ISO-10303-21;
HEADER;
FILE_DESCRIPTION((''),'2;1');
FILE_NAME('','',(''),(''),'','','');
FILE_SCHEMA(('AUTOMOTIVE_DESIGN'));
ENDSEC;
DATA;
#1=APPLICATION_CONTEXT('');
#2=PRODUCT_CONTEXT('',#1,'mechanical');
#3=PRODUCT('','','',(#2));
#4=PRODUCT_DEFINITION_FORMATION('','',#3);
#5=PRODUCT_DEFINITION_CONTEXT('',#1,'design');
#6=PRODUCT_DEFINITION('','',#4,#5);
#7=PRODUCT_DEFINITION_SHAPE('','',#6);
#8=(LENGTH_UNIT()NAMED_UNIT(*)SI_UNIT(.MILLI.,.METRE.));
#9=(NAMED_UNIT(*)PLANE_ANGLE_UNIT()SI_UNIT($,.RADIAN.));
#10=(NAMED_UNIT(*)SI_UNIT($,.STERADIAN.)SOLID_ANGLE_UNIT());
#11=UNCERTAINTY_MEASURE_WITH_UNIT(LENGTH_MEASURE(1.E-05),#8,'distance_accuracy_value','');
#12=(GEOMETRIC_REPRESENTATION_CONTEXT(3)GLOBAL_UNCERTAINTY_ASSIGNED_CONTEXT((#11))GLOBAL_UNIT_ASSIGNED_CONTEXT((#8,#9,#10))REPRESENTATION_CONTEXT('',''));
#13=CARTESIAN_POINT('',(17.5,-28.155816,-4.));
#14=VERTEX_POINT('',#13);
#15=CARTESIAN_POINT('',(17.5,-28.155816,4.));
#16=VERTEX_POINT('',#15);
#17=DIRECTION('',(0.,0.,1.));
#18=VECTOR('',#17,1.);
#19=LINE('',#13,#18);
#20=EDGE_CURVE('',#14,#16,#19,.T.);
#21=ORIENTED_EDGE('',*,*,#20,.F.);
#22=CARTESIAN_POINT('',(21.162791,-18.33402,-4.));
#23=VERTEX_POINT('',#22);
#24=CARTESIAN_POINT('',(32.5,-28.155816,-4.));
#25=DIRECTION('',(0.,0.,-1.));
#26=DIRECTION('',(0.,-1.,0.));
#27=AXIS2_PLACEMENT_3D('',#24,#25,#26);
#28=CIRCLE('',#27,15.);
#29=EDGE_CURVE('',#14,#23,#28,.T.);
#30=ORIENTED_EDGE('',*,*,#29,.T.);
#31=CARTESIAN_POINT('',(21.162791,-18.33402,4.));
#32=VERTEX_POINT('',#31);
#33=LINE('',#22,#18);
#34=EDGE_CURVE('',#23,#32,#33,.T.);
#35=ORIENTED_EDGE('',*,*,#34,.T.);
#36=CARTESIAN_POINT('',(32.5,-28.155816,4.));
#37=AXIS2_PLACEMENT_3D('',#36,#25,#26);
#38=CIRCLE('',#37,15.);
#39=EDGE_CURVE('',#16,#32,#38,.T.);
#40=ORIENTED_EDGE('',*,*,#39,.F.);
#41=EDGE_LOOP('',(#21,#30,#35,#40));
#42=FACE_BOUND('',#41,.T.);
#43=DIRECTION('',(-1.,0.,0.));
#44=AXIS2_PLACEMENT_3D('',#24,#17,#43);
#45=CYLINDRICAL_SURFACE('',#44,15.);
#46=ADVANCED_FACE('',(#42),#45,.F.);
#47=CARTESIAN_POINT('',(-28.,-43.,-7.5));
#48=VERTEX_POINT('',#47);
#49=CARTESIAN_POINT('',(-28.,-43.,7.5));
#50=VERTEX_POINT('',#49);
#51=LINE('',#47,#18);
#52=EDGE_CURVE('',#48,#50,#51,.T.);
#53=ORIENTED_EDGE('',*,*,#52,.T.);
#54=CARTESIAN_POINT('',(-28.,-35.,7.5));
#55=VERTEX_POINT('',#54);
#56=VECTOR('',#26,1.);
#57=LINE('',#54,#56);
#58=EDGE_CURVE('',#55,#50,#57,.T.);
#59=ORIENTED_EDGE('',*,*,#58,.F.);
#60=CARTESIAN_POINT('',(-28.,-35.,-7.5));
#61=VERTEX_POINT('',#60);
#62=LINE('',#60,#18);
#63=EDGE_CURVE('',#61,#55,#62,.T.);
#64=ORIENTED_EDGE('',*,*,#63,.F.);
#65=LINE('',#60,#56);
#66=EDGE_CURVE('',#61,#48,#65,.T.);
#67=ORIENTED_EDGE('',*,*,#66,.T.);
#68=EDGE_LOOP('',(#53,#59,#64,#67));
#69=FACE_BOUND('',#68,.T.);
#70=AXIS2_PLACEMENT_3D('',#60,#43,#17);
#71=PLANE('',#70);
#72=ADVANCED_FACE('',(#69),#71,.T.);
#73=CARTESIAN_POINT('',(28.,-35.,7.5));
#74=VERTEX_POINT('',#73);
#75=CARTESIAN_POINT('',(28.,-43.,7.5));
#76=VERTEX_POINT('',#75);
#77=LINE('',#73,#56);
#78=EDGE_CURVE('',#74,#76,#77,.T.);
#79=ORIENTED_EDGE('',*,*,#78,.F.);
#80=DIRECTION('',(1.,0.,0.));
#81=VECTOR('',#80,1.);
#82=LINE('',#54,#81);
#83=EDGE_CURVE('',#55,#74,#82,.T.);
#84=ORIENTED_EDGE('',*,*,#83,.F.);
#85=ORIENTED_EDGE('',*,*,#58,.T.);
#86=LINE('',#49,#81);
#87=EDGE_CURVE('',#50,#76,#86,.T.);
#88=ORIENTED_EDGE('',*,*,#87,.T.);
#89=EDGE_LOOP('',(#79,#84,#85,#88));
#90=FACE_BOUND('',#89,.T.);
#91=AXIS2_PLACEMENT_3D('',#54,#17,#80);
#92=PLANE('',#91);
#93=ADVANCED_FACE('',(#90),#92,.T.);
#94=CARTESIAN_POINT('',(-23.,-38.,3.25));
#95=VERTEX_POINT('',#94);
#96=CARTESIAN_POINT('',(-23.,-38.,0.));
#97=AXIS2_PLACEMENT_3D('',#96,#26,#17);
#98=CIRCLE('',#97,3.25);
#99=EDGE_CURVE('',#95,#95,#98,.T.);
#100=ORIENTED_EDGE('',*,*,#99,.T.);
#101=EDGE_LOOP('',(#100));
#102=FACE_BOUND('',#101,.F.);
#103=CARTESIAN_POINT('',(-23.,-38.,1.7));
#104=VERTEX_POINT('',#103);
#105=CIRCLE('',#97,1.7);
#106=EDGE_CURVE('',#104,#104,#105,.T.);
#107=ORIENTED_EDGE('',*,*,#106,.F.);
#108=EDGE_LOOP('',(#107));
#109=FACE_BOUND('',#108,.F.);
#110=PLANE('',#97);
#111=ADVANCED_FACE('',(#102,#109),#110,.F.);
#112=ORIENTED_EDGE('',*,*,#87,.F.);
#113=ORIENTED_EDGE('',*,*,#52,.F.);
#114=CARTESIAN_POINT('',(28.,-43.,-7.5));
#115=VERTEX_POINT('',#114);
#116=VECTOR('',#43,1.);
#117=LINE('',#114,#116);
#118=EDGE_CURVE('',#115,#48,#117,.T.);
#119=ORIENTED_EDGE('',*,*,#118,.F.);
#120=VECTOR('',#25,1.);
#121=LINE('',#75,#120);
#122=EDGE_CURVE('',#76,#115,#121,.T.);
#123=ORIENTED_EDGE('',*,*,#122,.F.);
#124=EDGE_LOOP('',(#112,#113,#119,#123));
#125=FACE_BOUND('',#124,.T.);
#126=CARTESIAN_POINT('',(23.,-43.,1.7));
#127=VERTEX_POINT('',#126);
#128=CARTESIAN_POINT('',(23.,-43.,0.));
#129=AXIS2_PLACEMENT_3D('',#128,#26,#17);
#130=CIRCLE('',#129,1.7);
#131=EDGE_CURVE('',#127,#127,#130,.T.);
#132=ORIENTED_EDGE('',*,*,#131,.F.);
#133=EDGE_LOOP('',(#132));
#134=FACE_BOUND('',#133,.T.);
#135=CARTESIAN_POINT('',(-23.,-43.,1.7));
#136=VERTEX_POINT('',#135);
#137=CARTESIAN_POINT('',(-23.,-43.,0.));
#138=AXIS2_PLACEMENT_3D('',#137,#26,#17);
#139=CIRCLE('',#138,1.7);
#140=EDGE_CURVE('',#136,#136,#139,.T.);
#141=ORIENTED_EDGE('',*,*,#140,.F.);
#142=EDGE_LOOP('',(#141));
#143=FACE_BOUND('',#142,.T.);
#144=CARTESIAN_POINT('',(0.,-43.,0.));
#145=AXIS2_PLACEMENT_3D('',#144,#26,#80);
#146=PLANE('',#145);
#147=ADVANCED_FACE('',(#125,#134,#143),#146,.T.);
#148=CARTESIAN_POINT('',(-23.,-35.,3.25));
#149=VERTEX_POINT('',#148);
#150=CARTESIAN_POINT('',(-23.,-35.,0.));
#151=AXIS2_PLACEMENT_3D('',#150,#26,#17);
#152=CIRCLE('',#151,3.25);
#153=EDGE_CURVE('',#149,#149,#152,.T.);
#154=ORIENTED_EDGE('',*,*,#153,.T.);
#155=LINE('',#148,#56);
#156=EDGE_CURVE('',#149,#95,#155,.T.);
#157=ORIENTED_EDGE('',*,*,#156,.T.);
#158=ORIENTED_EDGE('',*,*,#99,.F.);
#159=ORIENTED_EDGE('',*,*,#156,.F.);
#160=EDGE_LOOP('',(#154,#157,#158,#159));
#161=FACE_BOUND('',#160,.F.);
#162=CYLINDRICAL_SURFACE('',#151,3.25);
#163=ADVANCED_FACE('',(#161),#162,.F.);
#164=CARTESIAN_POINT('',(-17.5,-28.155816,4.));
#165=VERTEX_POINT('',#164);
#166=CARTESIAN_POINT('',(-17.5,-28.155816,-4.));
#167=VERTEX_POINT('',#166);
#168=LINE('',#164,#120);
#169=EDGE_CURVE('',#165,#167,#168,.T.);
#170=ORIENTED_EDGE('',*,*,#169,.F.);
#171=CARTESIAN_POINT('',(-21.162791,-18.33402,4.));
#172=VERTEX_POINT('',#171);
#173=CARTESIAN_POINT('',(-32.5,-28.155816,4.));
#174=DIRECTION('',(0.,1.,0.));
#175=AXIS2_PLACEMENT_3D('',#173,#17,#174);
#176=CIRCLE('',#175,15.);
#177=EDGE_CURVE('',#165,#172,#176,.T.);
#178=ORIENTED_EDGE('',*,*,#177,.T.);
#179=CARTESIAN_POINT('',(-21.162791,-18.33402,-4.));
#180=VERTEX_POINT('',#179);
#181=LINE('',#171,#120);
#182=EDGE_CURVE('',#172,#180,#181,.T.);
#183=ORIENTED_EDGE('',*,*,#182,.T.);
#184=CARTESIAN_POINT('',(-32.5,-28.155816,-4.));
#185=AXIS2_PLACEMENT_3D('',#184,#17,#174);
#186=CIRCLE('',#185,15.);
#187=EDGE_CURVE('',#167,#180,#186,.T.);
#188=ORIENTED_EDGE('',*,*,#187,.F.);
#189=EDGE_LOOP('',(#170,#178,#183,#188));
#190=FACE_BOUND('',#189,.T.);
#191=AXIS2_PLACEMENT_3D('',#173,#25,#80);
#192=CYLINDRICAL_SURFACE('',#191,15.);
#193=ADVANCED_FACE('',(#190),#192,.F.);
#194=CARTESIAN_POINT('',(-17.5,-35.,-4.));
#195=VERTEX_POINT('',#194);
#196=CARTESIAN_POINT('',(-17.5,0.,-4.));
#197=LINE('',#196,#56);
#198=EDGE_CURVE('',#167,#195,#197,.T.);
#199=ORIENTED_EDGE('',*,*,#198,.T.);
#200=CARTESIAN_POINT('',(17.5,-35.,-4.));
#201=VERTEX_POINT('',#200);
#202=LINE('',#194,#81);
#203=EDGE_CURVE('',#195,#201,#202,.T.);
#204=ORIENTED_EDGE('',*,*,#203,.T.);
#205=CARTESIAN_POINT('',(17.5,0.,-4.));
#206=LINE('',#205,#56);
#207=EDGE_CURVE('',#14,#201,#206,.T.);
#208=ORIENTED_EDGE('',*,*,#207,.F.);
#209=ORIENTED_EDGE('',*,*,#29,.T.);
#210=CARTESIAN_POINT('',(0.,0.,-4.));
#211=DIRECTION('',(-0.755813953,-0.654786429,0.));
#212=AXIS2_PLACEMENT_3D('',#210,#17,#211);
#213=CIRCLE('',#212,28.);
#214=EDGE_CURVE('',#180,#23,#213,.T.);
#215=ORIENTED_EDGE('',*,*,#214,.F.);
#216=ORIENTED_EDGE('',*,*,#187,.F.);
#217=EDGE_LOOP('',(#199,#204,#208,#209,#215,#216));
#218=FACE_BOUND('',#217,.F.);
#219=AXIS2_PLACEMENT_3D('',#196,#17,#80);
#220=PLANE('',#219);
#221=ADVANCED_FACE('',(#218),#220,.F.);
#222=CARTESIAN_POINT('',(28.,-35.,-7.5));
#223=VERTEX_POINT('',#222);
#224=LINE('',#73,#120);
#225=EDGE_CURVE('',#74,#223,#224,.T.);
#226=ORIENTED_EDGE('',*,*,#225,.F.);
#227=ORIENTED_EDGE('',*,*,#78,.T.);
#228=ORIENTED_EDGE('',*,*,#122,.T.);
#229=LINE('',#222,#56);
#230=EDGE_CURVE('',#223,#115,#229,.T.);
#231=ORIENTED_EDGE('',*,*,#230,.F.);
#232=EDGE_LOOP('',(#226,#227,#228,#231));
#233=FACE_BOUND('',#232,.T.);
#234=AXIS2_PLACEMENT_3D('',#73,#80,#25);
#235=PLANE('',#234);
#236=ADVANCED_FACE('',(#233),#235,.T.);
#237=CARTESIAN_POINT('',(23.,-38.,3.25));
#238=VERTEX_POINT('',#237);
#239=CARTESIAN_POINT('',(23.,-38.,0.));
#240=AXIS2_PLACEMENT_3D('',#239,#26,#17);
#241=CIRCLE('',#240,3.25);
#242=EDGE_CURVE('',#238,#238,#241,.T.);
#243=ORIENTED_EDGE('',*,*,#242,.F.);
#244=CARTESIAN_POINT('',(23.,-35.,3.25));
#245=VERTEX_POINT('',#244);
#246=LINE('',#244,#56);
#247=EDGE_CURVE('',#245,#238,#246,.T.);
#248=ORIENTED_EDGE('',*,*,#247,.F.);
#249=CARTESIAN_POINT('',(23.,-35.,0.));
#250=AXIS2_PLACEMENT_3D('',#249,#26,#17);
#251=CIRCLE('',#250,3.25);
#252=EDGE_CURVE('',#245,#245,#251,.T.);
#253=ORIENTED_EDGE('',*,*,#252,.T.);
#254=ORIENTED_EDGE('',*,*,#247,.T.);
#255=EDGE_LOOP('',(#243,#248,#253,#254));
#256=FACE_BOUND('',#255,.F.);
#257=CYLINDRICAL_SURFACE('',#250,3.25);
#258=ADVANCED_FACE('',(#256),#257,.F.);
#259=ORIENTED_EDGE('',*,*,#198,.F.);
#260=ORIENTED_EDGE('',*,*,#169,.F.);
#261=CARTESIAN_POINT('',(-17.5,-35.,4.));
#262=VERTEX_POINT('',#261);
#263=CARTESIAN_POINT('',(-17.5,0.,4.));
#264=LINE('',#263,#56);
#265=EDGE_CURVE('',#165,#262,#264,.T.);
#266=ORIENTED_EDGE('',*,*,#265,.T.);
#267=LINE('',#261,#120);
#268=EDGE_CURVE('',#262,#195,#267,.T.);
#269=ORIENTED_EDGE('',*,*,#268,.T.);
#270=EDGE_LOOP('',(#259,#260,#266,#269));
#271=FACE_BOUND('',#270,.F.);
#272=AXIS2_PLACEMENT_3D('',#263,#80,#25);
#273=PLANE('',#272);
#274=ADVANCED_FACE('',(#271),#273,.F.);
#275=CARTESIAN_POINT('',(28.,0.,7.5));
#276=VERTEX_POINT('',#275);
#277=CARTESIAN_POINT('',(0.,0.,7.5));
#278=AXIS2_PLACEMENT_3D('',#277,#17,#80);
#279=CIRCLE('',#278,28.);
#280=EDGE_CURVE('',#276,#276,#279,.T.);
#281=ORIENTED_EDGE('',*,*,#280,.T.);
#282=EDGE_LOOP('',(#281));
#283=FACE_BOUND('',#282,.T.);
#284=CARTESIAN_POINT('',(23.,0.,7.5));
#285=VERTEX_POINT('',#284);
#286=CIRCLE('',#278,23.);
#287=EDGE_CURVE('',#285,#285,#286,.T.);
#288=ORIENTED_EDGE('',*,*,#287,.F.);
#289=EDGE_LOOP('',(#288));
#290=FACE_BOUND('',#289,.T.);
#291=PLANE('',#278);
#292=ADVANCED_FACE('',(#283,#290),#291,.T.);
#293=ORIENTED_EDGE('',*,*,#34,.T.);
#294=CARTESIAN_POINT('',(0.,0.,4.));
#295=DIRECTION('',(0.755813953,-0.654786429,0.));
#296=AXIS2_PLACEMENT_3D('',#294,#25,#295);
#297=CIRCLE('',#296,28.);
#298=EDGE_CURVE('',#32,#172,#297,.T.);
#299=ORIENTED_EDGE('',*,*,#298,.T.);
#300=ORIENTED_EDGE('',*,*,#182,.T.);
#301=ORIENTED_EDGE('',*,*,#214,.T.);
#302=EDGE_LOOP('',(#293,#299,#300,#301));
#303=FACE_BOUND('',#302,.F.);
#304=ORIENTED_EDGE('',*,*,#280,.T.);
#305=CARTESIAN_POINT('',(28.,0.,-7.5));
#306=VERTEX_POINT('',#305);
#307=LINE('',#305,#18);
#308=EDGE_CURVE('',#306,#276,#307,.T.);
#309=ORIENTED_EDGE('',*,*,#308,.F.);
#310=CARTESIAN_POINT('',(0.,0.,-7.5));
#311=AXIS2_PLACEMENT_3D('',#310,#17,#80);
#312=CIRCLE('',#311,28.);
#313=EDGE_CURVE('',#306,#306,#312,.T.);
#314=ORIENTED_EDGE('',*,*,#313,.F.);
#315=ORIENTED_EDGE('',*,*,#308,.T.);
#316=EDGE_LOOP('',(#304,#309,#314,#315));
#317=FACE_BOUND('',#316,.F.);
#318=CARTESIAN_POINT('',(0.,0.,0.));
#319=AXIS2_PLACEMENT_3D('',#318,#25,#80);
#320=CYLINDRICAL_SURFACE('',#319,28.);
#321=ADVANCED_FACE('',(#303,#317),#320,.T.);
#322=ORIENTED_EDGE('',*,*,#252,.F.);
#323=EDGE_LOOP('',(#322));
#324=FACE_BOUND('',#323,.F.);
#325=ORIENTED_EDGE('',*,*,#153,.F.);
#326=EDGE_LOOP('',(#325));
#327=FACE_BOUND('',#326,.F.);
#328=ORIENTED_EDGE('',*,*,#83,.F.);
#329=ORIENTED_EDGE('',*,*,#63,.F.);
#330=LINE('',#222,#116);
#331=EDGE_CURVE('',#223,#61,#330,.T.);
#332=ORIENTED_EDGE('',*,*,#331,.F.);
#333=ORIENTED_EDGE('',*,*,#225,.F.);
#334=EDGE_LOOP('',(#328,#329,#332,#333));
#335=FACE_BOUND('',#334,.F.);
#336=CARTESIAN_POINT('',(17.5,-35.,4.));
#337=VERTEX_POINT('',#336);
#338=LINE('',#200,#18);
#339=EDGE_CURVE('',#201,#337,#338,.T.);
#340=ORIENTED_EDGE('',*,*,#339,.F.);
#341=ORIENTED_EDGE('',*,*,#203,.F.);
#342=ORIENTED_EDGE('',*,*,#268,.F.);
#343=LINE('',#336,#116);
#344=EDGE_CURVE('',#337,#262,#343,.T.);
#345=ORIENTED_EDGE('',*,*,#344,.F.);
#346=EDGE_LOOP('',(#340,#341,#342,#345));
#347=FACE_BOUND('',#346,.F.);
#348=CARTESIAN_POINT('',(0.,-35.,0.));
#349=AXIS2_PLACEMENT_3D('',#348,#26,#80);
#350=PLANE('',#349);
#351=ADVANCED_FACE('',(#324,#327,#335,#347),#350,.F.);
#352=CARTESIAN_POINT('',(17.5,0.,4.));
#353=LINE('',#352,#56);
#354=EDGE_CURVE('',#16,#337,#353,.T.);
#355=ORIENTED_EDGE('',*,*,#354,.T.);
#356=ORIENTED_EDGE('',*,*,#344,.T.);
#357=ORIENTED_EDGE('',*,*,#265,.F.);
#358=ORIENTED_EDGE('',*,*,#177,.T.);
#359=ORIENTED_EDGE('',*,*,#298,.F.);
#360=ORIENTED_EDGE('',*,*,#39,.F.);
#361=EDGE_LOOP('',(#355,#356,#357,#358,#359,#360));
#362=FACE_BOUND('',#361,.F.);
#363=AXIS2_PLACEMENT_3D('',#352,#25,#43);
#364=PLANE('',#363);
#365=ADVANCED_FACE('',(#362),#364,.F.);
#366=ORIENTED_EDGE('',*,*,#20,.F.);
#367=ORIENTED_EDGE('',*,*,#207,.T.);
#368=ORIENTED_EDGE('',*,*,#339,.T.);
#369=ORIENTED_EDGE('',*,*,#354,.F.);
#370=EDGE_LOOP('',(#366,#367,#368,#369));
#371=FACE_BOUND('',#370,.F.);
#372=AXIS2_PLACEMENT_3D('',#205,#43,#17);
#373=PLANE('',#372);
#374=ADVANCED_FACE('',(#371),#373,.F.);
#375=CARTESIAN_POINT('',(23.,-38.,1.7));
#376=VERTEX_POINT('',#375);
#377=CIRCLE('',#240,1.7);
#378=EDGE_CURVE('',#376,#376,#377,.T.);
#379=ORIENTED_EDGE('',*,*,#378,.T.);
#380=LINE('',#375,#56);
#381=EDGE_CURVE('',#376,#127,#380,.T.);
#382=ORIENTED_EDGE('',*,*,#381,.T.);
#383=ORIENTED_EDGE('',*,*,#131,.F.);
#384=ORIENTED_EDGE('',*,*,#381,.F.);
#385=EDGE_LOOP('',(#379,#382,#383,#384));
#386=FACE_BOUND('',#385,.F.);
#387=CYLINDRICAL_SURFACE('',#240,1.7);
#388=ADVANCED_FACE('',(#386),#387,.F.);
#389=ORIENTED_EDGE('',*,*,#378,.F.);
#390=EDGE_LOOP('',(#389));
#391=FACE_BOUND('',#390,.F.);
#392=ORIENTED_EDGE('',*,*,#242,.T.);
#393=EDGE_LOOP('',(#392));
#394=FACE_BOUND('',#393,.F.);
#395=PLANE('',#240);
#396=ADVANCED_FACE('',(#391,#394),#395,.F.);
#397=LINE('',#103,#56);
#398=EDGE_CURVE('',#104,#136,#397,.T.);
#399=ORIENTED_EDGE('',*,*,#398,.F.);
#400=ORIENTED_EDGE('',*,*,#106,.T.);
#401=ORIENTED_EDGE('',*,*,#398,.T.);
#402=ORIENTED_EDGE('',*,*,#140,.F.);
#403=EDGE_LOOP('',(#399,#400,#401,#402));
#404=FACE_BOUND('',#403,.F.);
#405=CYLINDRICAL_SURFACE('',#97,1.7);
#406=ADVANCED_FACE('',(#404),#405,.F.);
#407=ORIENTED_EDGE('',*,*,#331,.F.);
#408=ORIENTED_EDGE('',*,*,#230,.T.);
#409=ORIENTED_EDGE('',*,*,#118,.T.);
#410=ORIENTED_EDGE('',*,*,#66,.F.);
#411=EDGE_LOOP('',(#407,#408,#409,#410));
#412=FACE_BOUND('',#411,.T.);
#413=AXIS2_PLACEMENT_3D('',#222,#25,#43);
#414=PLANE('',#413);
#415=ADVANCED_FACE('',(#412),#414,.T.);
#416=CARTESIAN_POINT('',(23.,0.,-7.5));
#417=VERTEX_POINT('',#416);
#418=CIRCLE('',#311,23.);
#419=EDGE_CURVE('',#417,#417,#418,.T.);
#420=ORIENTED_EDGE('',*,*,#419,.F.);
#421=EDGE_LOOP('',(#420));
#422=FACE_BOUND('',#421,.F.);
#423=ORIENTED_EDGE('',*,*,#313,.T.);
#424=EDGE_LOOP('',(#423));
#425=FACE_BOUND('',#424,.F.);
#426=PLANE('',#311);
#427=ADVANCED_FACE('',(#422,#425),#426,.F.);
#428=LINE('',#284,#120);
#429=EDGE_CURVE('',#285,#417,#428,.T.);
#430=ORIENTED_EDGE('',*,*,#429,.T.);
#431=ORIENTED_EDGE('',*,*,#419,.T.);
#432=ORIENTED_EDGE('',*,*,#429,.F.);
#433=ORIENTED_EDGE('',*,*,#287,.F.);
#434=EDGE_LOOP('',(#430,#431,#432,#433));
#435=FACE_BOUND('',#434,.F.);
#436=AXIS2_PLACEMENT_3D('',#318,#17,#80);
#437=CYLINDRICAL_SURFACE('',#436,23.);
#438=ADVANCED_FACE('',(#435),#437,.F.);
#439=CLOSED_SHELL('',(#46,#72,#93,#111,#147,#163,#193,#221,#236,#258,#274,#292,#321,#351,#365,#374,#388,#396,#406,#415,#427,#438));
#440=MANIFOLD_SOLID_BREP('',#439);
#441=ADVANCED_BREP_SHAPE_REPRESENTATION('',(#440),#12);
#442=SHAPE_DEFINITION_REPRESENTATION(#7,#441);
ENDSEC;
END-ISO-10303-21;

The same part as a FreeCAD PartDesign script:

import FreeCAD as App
import Part
import Sketcher

V = App.Vector


def edges_at(feature, points):
    """Names of the edges that pass closest to the given points."""
    edges = feature.Shape.Edges
    near = lambda p: min(range(len(edges)), key=lambda i: edges[i].distToShape(Part.Vertex(*p))[0])
    return sorted({f"Edge{near(p) + 1}" for p in points})

doc = App.newDocument("Part")
body = doc.addObject("PartDesign::Body", "Body")

# Sketch on XY plane
sketch1 = body.newObject("Sketcher::SketchObject", "Sketch")
sketch1.AttachmentSupport = (doc.getObject("XY_Plane"), [""])
sketch1.MapMode = "FlatFace"
sketch1.addGeometry([
    Part.Circle(V(0, 0, 0), V(0, 0, 1), 28),
    Part.Circle(V(0, 0, 0), V(0, 0, 1), 23),
], False)
sketch1.addConstraint([
    Sketcher.Constraint("Coincident", 0, 3, -1, 1),
    Sketcher.Constraint("Coincident", 1, 3, -1, 1),
    Sketcher.Constraint("Diameter", 0, 56.0),
    Sketcher.Constraint("Diameter", 1, 46.0),
])
pad1 = body.newObject("PartDesign::Pad", "Pad")
pad1.Profile = sketch1
pad1.Length = 15
pad1.Midplane = True

# Sketch on XZ plane
sketch2 = body.newObject("Sketcher::SketchObject", "Sketch001")
sketch2.AttachmentSupport = (doc.getObject("XZ_Plane"), [""])
sketch2.MapMode = "FlatFace"
sketch2.addGeometry([
    Part.LineSegment(V(18, -4, 0), V(-18, -4, 0)),
    Part.LineSegment(V(-18, -4, 0), V(-18, 4, 0)),
    Part.LineSegment(V(-18, 4, 0), V(18, 4, 0)),
    Part.LineSegment(V(18, 4, 0), V(18, -4, 0)),
], False)
sketch2.addConstraint([
    Sketcher.Constraint("Coincident", 0, 2, 1, 1),
    Sketcher.Constraint("Coincident", 1, 2, 2, 1),
    Sketcher.Constraint("Coincident", 2, 2, 3, 1),
    Sketcher.Constraint("Coincident", 3, 2, 0, 1),
    Sketcher.Constraint("Horizontal", 0),
    Sketcher.Constraint("Vertical", 1),
    Sketcher.Constraint("Horizontal", 2),
    Sketcher.Constraint("Vertical", 3),
    Sketcher.Constraint("Symmetric", 0, 2, 2, 2, -1, 1),
    Sketcher.Constraint("DistanceX", 0, 2, 0, 1, 35.0),
    Sketcher.Constraint("DistanceY", 1, 1, 1, 2, 8.0),
])
pad2 = body.newObject("PartDesign::Pad", "Pad001")
pad2.Profile = sketch2
pad2.Length = 35

# Sketch on XZ plane
sketch3 = body.newObject("Sketcher::SketchObject", "Sketch002")
sketch3.AttachmentSupport = (doc.getObject("XZ_Plane"), [""])
sketch3.MapMode = "FlatFace"
sketch3.AttachmentOffset = App.Placement(V(0, 0, 35), App.Rotation())
sketch3.addGeometry([
    Part.LineSegment(V(28, 8, 0), V(-28, 8, 0)),
    Part.LineSegment(V(-28, 8, 0), V(-28, -8, 0)),
    Part.LineSegment(V(-28, -8, 0), V(28, -8, 0)),
    Part.LineSegment(V(28, -8, 0), V(28, 8, 0)),
], False)
sketch3.addConstraint([
    Sketcher.Constraint("Coincident", 0, 2, 1, 1),
    Sketcher.Constraint("Coincident", 1, 2, 2, 1),
    Sketcher.Constraint("Coincident", 2, 2, 3, 1),
    Sketcher.Constraint("Coincident", 3, 2, 0, 1),
    Sketcher.Constraint("Horizontal", 0),
    Sketcher.Constraint("Vertical", 1),
    Sketcher.Constraint("Horizontal", 2),
    Sketcher.Constraint("Vertical", 3),
    Sketcher.Constraint("Symmetric", 0, 2, 2, 2, -1, 1),
    Sketcher.Constraint("DistanceX", 0, 2, 0, 1, 56.0),
    Sketcher.Constraint("DistanceY", 1, 2, 1, 1, 15.0),
])
pad3 = body.newObject("PartDesign::Pad", "Pad002")
pad3.Profile = sketch3
pad3.Length = 8

# Sketch on XY plane
sketch4 = body.newObject("Sketcher::SketchObject", "Sketch003")
sketch4.AttachmentSupport = (doc.getObject("XY_Plane"), [""])
sketch4.MapMode = "FlatFace"
sketch4.AttachmentOffset = App.Placement(V(0, 0, 7.5), App.Rotation())
sketch4.addGeometry(Part.Circle(V(0, 0, 0), V(0, 0, 1), 23), False)
sketch4.addConstraint([
    Sketcher.Constraint("Coincident", 0, 3, -1, 1),
    Sketcher.Constraint("Diameter", 0, 46.0),
])
pocket1 = body.newObject("PartDesign::Pocket", "Pocket")
pocket1.Profile = sketch4
pocket1.Type = "ThroughAll"
doc.recompute()

fillet = body.newObject("PartDesign::Fillet", "Fillet")
fillet.Base = (pocket1, edges_at(pocket1, [(-17.5, -21.858, 0), (17.5, -21.858, 0)]))
fillet.Radius = 15

# Sketch on XZ plane
sketch5 = body.newObject("Sketcher::SketchObject", "Sketch004")
sketch5.AttachmentSupport = (doc.getObject("XZ_Plane"), [""])
sketch5.MapMode = "FlatFace"
sketch5.AttachmentOffset = App.Placement(V(0, 0, 35), App.Rotation())
sketch5.addGeometry([
    Part.Circle(V(-23, 0, 0), V(0, 0, 1), 1.7),
    Part.Circle(V(23, 0, 0), V(0, 0, 1), 1.7),
], False)
sketch5.addConstraint([
    Sketcher.Constraint("Equal", 0, 1),
    Sketcher.Constraint("Symmetric", 0, 3, 1, 3, -1, 1),
    Sketcher.Constraint("PointOnObject", 0, 3, -1),
    Sketcher.Constraint("Diameter", 0, 3.4),
    Sketcher.Constraint("DistanceX", 0, 3, -1, 1, 23.0),
])
doc.recompute()
hole = body.newObject("PartDesign::Hole", "Hole")
hole.Profile = sketch5
hole.ThreadType = "None"
hole.Diameter = 3.4
hole.DepthType = "ThroughAll"
hole.HoleCutType = "Counterbore"
hole.HoleCutDiameter = 6.5
hole.HoleCutDepth = 3
hole.Reversed = True

doc.recompute()
